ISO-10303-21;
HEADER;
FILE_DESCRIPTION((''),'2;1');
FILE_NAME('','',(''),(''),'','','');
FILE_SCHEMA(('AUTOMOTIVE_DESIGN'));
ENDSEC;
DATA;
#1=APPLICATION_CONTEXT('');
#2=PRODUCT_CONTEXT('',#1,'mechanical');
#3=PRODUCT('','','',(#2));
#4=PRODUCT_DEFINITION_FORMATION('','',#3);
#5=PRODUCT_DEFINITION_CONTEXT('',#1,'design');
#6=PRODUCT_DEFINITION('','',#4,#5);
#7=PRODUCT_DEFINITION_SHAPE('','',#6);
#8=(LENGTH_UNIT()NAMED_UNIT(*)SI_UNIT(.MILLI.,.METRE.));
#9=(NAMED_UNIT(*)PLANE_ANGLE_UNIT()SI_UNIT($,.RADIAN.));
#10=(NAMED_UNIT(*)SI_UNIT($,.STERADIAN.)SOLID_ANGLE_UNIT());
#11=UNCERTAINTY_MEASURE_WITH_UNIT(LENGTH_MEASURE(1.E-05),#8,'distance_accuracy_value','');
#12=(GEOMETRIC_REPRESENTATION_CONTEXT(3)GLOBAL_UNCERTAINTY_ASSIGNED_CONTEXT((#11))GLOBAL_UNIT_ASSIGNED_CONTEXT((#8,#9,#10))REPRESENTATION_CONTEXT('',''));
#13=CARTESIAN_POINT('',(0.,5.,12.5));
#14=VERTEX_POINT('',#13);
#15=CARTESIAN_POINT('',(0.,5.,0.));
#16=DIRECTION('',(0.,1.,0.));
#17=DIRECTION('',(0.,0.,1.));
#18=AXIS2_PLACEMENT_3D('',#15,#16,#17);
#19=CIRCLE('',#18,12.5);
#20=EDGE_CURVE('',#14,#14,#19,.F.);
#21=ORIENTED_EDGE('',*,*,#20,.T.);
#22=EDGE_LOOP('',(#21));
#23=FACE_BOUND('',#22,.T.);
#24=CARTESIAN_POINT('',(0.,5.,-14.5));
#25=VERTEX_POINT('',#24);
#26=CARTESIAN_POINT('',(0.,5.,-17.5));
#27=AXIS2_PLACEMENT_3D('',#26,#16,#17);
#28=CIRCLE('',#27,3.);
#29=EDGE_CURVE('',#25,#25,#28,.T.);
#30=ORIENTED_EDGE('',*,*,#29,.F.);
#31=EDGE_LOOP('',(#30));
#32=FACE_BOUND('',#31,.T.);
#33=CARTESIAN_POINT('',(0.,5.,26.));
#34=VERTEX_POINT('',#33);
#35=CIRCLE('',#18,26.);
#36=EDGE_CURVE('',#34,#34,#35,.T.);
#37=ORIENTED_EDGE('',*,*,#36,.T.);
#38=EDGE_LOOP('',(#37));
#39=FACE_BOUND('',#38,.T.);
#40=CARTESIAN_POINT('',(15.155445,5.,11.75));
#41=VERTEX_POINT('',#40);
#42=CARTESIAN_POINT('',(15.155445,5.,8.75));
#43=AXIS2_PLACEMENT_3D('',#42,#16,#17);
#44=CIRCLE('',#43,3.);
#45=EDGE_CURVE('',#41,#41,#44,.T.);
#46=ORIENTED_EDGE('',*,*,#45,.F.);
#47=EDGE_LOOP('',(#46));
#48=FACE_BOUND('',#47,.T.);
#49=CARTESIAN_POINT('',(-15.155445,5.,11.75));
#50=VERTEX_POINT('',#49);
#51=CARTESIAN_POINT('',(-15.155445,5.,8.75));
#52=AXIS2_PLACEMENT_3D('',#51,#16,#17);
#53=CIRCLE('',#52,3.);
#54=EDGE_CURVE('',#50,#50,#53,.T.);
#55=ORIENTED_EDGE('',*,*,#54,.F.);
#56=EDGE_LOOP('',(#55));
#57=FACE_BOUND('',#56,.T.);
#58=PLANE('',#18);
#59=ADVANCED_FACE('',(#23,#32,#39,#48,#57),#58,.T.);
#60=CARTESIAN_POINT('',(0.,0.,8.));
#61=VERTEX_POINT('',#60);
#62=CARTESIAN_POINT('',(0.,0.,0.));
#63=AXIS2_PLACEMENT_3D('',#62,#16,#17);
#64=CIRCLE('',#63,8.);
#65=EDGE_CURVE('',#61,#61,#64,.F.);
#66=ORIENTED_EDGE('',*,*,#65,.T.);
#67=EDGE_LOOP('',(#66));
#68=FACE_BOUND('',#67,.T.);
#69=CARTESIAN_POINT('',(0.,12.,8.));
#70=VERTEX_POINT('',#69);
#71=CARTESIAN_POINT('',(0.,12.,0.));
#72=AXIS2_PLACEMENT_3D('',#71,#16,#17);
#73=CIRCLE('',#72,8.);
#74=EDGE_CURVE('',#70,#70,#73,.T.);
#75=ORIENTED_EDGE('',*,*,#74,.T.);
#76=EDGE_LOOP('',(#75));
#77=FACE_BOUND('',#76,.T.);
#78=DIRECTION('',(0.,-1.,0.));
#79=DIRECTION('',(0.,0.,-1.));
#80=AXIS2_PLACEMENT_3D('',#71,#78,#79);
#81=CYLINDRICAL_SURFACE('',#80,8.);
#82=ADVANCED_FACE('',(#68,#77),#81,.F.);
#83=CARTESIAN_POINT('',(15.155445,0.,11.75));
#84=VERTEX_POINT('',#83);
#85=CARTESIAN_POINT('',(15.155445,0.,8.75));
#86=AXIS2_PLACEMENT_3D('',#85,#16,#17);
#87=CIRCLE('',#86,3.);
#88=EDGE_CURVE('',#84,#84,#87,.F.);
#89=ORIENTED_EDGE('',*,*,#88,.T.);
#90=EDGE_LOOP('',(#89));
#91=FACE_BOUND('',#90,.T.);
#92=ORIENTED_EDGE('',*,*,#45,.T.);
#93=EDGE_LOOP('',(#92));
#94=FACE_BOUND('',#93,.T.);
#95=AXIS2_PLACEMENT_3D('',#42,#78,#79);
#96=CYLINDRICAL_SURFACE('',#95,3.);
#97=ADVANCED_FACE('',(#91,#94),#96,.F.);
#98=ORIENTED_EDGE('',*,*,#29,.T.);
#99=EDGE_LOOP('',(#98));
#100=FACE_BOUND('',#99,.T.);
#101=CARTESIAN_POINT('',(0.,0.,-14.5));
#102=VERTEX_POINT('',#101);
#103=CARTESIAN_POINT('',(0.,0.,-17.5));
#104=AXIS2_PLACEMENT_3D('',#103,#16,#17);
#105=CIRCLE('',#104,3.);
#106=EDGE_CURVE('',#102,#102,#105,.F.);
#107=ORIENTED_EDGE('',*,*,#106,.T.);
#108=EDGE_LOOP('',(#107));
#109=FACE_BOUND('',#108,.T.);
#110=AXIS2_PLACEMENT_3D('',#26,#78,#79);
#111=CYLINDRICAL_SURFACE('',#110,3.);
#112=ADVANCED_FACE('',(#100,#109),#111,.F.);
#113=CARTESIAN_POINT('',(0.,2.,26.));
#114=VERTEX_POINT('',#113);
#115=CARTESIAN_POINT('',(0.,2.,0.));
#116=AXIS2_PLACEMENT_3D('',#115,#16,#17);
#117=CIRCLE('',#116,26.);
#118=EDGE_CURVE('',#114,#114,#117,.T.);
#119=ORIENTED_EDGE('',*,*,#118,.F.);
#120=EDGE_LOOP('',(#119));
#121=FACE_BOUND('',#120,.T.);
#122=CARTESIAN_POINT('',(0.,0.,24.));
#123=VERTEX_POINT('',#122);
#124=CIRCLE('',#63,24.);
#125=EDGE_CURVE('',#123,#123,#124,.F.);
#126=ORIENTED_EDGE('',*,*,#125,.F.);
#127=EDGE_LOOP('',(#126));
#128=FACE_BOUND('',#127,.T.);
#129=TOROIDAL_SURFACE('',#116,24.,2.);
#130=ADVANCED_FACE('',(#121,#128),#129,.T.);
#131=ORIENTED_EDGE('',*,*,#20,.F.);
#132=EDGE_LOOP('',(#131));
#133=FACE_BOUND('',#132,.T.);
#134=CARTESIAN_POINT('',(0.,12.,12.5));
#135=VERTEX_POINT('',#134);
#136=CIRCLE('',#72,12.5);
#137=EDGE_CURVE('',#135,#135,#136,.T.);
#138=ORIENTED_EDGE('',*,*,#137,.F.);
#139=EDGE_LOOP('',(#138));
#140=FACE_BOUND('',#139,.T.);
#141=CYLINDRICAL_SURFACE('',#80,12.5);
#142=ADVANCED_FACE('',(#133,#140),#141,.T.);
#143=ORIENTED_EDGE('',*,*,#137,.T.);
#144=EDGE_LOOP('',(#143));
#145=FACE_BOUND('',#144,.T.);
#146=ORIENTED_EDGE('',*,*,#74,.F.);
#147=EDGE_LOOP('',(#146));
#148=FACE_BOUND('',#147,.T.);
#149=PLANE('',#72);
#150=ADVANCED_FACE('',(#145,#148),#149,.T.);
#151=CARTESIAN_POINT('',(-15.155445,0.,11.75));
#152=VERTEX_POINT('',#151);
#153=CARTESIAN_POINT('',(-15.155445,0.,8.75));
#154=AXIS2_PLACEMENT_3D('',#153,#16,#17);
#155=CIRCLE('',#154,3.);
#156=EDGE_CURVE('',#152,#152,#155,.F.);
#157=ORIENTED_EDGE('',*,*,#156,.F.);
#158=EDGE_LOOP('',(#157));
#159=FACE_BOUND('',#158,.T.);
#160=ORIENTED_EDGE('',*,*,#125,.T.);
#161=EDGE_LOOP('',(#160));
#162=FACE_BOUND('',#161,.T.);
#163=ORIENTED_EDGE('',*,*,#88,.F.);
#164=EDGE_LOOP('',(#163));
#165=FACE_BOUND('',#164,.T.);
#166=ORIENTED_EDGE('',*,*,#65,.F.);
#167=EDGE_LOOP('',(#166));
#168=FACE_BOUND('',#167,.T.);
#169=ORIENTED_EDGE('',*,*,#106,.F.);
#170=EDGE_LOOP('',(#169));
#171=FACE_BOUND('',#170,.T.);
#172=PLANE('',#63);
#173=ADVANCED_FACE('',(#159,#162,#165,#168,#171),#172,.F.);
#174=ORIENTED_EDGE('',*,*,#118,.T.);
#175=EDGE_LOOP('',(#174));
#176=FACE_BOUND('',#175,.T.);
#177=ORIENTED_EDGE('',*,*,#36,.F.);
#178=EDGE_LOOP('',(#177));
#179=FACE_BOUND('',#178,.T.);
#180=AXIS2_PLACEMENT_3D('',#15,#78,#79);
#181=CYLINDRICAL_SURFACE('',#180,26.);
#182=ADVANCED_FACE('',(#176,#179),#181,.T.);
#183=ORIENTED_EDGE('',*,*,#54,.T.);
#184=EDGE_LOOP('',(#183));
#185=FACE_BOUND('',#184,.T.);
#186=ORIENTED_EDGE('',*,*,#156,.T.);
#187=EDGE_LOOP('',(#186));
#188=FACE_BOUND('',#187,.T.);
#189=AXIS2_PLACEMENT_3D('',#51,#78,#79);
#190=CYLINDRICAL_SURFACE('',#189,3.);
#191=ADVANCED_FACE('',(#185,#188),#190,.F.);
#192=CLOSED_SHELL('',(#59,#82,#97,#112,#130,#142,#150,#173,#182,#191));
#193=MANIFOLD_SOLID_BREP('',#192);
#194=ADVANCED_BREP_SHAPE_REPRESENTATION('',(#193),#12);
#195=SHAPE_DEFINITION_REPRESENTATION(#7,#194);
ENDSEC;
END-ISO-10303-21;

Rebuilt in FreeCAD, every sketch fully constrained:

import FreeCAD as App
import Part
import Sketcher

V = App.Vector


def edges_at(feature, points):
    """Names of the edges that pass closest to the given points."""
    edges = feature.Shape.Edges
    near = lambda p: min(range(len(edges)), key=lambda i: edges[i].distToShape(Part.Vertex(*p))[0])
    return sorted({f"Edge{near(p) + 1}" for p in points})

doc = App.newDocument("Part")
body = doc.addObject("PartDesign::Body", "Body")

# Sketch on XZ plane
sketch1 = doc.addObject("Sketcher::SketchObject", "Sketch")
body.addObject(sketch1)
sketch1.AttachmentSupport = (doc.XZ_Plane, [""])
sketch1.MapMode = "FlatFace"
sketch1.addGeometry(Part.Circle(V(0, 0, 0), V(0, 0, 1), 26), False)
sketch1.addConstraint([
    Sketcher.Constraint("Coincident", 0, 3, -1, 1),
    Sketcher.Constraint("Diameter", 0, 52.0),
])
pad1 = doc.addObject("PartDesign::Pad", "Pad")
body.addObject(pad1)
pad1.Profile = sketch1
pad1.Length = 5
pad1.Reversed = True

# Sketch on XZ plane
sketch2 = doc.addObject("Sketcher::SketchObject", "Sketch001")
body.addObject(sketch2)
sketch2.AttachmentSupport = (doc.XZ_Plane, [""])
sketch2.MapMode = "FlatFace"
sketch2.addGeometry([
    Part.Circle(V(0, -17.5, 0), V(0, 0, 1), 3),
    Part.Circle(V(15.2, 8.8, 0), V(0, 0, 1), 3),
    Part.Circle(V(-15.2, 8.8, 0), V(0, 0, 1), 3),
], False)
sketch2.addConstraint([
    Sketcher.Constraint("Equal", 0, 1),
    Sketcher.Constraint("Equal", 1, 2),
    Sketcher.Constraint("Symmetric", 1, 3, 2, 3, -2),
    Sketcher.Constraint("PointOnObject", 0, 3, -2),
    Sketcher.Constraint("Diameter", 0, 6.0),
    Sketcher.Constraint("DistanceY", 0, 3, -1, 1, 17.5),
    Sketcher.Constraint("DistanceY", -1, 1, 1, 3, 8.75),
    Sketcher.Constraint("DistanceX", 2, 3, 1, 3, 30.310889),
])
pocket1 = doc.addObject("PartDesign::Pocket", "Pocket")
body.addObject(pocket1)
pocket1.Profile = sketch2
pocket1.Type = "ThroughAll"
pocket1.Midplane = True

# Sketch on XZ plane
sketch3 = doc.addObject("Sketcher::SketchObject", "Sketch002")
body.addObject(sketch3)
sketch3.AttachmentSupport = (doc.XZ_Plane, [""])
sketch3.MapMode = "FlatFace"
sketch3.addGeometry(Part.Circle(V(0, 0, 0), V(0, 0, 1), 12), False)
sketch3.addConstraint([
    Sketcher.Constraint("Coincident", 0, 3, -1, 1),
    Sketcher.Constraint("Diameter", 0, 25.0),
])
pad2 = doc.addObject("PartDesign::Pad", "Pad001")
body.addObject(pad2)
pad2.Profile = sketch3
pad2.Length = 12
pad2.Reversed = True

# Sketch on XZ plane
sketch4 = doc.addObject("Sketcher::SketchObject", "Sketch003")
body.addObject(sketch4)
sketch4.AttachmentSupport = (doc.XZ_Plane, [""])
sketch4.MapMode = "FlatFace"
sketch4.addGeometry(Part.Circle(V(0, 0, 0), V(0, 0, 1), 8), False)
sketch4.addConstraint([
    Sketcher.Constraint("Coincident", 0, 3, -1, 1),
    Sketcher.Constraint("Diameter", 0, 16.0),
])
pocket2 = doc.addObject("PartDesign::Pocket", "Pocket001")
body.addObject(pocket2)
pocket2.Profile = sketch4
pocket2.Type = "ThroughAll"
pocket2.Midplane = True
doc.recompute()

fillet = doc.addObject("PartDesign::Fillet", "Fillet")
body.addObject(fillet)
fillet.Base = (pocket2, edges_at(pocket2, [(-26, 0, 0)]))
fillet.Radius = 2

doc.recompute()
